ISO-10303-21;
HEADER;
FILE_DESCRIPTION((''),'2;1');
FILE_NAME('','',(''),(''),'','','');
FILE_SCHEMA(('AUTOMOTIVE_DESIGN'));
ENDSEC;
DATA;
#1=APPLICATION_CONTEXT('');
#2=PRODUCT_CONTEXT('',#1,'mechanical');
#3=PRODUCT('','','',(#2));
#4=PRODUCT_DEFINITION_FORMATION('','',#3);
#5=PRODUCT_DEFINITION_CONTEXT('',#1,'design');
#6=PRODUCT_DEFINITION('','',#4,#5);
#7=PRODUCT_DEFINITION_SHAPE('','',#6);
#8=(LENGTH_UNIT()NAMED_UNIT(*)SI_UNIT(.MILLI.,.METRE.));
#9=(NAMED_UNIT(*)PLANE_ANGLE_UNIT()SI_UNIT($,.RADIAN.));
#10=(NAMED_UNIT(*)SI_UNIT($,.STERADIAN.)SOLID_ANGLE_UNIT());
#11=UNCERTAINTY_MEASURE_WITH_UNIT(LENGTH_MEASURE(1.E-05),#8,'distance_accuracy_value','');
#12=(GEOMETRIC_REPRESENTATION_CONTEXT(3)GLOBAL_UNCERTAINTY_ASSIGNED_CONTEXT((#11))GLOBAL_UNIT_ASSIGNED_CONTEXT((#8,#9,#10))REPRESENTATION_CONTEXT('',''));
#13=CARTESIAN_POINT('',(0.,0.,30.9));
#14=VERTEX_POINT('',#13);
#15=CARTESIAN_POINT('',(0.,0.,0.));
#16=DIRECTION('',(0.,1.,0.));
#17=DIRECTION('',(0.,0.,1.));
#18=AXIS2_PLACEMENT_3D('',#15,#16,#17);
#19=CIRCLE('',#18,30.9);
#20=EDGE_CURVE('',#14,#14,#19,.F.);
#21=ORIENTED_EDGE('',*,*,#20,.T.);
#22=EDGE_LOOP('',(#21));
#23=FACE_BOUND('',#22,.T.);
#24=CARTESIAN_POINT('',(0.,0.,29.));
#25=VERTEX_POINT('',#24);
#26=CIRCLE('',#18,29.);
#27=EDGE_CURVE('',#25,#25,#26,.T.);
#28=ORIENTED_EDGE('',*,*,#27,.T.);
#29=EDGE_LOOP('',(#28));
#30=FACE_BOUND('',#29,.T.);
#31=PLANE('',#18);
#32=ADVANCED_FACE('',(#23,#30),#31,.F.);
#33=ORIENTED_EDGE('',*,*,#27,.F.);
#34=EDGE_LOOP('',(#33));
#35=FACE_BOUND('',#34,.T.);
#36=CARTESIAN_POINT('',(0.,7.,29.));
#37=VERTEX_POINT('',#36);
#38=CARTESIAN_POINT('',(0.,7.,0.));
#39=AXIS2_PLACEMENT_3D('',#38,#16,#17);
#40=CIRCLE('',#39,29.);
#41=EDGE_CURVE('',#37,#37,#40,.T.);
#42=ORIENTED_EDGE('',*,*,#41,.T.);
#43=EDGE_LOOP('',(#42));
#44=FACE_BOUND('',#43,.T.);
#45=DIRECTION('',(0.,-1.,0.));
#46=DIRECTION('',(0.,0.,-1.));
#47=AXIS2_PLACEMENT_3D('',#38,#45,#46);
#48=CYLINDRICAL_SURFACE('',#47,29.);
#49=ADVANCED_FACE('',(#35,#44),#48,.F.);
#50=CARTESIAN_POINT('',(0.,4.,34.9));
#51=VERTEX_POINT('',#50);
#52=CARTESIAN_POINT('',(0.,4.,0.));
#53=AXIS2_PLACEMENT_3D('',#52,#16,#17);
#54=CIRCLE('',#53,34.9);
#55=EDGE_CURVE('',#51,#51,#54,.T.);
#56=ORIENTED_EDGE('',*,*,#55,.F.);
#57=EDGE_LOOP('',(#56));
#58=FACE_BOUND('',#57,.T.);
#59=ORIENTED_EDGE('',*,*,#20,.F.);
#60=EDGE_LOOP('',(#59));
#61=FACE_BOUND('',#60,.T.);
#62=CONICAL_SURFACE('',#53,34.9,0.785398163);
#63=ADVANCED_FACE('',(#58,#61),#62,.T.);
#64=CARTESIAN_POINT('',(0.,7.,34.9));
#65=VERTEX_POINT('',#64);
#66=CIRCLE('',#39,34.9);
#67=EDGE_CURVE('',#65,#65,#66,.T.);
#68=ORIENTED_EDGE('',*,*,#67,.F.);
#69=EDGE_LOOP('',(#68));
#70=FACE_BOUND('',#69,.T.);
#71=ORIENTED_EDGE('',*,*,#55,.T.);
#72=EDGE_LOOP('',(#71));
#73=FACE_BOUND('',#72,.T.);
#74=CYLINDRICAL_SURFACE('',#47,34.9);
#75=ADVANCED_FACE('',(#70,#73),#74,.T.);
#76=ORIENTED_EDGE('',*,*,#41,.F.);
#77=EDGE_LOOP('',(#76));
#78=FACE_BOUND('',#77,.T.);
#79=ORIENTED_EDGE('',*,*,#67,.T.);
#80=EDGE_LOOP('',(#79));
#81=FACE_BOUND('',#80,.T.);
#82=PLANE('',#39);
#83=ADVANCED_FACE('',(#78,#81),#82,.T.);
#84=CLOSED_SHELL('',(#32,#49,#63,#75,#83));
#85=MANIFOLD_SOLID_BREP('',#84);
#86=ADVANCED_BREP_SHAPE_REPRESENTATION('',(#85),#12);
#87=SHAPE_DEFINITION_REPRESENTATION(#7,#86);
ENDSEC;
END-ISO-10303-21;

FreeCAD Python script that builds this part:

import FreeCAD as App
import Part
import Sketcher
Q = App.Units.Quantity


def edges_at(feature, points):
    """Names of the edges that pass closest to the given points."""
    edges = feature.Shape.Edges
    near = lambda p: min(range(len(edges)), key=lambda i: edges[i].distToShape(Part.Vertex(*p))[0])
    return sorted({f"Edge{near(p) + 1}" for p in points})

doc = App.newDocument("Part")
body = doc.addObject("PartDesign::Body", "Body")

# Sketch on XZ plane
sketch1 = body.newObject("Sketcher::SketchObject", "Sketch")
sketch1.AttachmentSupport = (doc.getObject("XZ_Plane"), [""])
sketch1.MapMode = "FlatFace"
sketch1.addGeometry([
    Part.Circle(App.Vector(0, 0, 0), App.Vector(0, 0, 1), 35),
    Part.Circle(App.Vector(0, 0, 0), App.Vector(0, 0, 1), 29),
], False)
sketch1.addConstraint([
    Sketcher.Constraint("Coincident", 0, 3, -1, 1),
    Sketcher.Constraint("Coincident", 1, 3, -1, 1),
    Sketcher.Constraint("Diameter", 1, Q("58 mm")),
    Sketcher.Constraint("Diameter", 0, Q("69.8 mm")),
])
pad1 = body.newObject("PartDesign::Pad", "Pad")
pad1.Profile = sketch1
pad1.Length = 7
pad1.Reversed = True
doc.recompute()

chamfer = body.newObject("PartDesign::Chamfer", "Chamfer")
chamfer.Base = (pad1, edges_at(pad1, [(0, 0, -34.9)]))
chamfer.Size = 4

doc.recompute()
